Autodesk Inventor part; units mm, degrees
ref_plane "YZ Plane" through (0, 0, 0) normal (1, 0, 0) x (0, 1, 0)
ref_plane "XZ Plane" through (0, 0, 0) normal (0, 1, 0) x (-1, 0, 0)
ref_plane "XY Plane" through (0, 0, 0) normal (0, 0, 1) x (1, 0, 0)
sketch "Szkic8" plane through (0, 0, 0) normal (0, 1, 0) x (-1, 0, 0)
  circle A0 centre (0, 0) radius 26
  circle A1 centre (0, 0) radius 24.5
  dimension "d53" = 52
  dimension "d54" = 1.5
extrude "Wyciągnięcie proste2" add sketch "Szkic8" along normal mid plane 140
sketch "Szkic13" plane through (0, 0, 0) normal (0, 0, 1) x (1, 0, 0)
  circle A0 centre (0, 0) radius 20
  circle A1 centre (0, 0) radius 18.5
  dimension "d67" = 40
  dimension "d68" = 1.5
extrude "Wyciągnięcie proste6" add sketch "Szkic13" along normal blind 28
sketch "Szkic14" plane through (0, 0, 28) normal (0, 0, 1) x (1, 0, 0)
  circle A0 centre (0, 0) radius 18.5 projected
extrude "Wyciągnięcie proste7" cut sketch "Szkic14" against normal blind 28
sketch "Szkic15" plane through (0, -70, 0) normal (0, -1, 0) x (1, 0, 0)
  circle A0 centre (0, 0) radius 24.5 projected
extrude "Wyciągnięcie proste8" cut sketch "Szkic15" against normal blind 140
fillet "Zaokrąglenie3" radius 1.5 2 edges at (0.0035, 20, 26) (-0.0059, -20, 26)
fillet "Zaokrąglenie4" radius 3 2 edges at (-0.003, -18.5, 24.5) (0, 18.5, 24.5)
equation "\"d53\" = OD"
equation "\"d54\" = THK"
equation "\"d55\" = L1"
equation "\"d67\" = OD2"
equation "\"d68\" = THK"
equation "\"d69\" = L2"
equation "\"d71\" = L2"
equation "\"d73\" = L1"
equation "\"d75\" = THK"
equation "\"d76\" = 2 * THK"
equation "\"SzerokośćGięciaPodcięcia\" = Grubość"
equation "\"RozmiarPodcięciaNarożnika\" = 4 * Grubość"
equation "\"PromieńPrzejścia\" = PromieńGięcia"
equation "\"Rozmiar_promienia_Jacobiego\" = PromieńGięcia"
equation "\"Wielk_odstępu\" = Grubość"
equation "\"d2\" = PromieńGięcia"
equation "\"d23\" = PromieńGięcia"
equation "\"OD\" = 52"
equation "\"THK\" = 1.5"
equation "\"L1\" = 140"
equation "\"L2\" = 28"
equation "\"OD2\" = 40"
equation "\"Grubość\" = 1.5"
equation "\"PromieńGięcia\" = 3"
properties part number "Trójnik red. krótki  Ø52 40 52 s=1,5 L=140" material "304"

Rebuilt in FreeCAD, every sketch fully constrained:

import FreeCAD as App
import Part
import Sketcher
Q = App.Units.Quantity


def edges_at(feature, points):
    """Names of the edges that pass closest to the given points."""
    edges = feature.Shape.Edges
    near = lambda p: min(range(len(edges)), key=lambda i: edges[i].distToShape(Part.Vertex(*p))[0])
    return sorted({f"Edge{near(p) + 1}" for p in points})

doc = App.newDocument("Part")
params = doc.addObject("Spreadsheet::Sheet", "Params")
for row, (alias, value) in enumerate([
    ("sketch1_diameter", "52 mm"),
    ("sketch1_diameter2", "49 mm"),
    ("pad1_length", "140 mm"),
    ("sketch2_diameter", "40 mm"),
    ("sketch2_diameter2", "37 mm"),
    ("pad2_length", "28 mm"),
    ("sketch3_diameter", "37 mm"),
    ("pocket1_length", "28 mm"),
    ("sketch4_diameter", "49 mm"),
    ("pocket2_length", "140 mm"),
    ("fillet_radius", "1.5 mm"),
    ("fillet2_radius", "3 mm"),
], start=1):
    params.set(f"A{row}", alias)
    params.set(f"B{row}", "=" + value)
    params.setAlias(f"B{row}", alias)

body = doc.addObject("PartDesign::Body", "Body")

sketch1 = body.newObject("Sketcher::SketchObject", "Sketch")
sketch1.AttachmentSupport = (doc.getObject("XZ_Plane"), [""])
sketch1.MapMode = "FlatFace"
sketch1.addGeometry([
    Part.Circle(App.Vector(0, 0, 0), App.Vector(0, 0, 1), 26),
    Part.Circle(App.Vector(0, 0, 0), App.Vector(0, 0, 1), 24),
], False)
sketch1.addConstraint([
    Sketcher.Constraint("Coincident", 0, 3, -1, 1),
    Sketcher.Constraint("Coincident", 1, 3, -1, 1),
    Sketcher.Constraint("Diameter", 0, Q("52 mm")),
    Sketcher.Constraint("Diameter", 1, Q("49 mm")),
])
sketch1.setExpression("Constraints[2]", "Params.sketch1_diameter")
sketch1.setExpression("Constraints[3]", "Params.sketch1_diameter2")
pad1 = body.newObject("PartDesign::Pad", "Pad")
pad1.Profile = sketch1
pad1.setExpression("Length", "Params.pad1_length")
pad1.Midplane = True

sketch2 = body.newObject("Sketcher::SketchObject", "Sketch001")
sketch2.AttachmentSupport = (doc.getObject("XY_Plane"), [""])
sketch2.MapMode = "FlatFace"
sketch2.addGeometry([
    Part.Circle(App.Vector(0, 0, 0), App.Vector(0, 0, 1), 20),
    Part.Circle(App.Vector(0, 0, 0), App.Vector(0, 0, 1), 18),
], False)
sketch2.addConstraint([
    Sketcher.Constraint("Coincident", 0, 3, -1, 1),
    Sketcher.Constraint("Coincident", 1, 3, -1, 1),
    Sketcher.Constraint("Diameter", 0, Q("40 mm")),
    Sketcher.Constraint("Diameter", 1, Q("37 mm")),
])
sketch2.setExpression("Constraints[2]", "Params.sketch2_diameter")
sketch2.setExpression("Constraints[3]", "Params.sketch2_diameter2")
pad2 = body.newObject("PartDesign::Pad", "Pad001")
pad2.Profile = sketch2
pad2.setExpression("Length", "Params.pad2_length")

sketch3 = body.newObject("Sketcher::SketchObject", "Sketch002")
sketch3.AttachmentSupport = (doc.getObject("XY_Plane"), [""])
sketch3.MapMode = "FlatFace"
sketch3.AttachmentOffset = App.Placement(App.Vector(0, 0, 28), App.Rotation())
sketch3.addGeometry(Part.Circle(App.Vector(0, 0, 0), App.Vector(0, 0, 1), 18), False)
sketch3.addConstraint([
    Sketcher.Constraint("Coincident", 0, 3, -1, 1),
    Sketcher.Constraint("Diameter", 0, Q("37 mm")),
])
sketch3.setExpression("Constraints[1]", "Params.sketch3_diameter")
pocket1 = body.newObject("PartDesign::Pocket", "Pocket")
pocket1.Profile = sketch3
pocket1.setExpression("Length", "Params.pocket1_length")

sketch4 = body.newObject("Sketcher::SketchObject", "Sketch003")
sketch4.AttachmentSupport = (doc.getObject("XZ_Plane"), [""])
sketch4.MapMode = "FlatFace"
sketch4.AttachmentOffset = App.Placement(App.Vector(0, 0, 70), App.Rotation())
sketch4.addGeometry(Part.Circle(App.Vector(0, 0, 0), App.Vector(0, 0, 1), 24), False)
sketch4.addConstraint([
    Sketcher.Constraint("Coincident", 0, 3, -1, 1),
    Sketcher.Constraint("Diameter", 0, Q("49 mm")),
])
sketch4.setExpression("Constraints[1]", "Params.sketch4_diameter")
pocket2 = body.newObject("PartDesign::Pocket", "Pocket001")
pocket2.Profile = sketch4
pocket2.setExpression("Length", "Params.pocket2_length")
doc.recompute()

fillet = body.newObject("PartDesign::Fillet", "Fillet")
fillet.Base = (pocket2, edges_at(pocket2, [(0.004, 20, 26), (-0.006, -20, 26)]))
fillet.setExpression("Radius", "Params.fillet_radius")
doc.recompute()

fillet2 = body.newObject("PartDesign::Fillet", "Fillet001")
fillet2.Base = (fillet, edges_at(fillet, [(-0.003, -18.5, 24.5), (0, 18.5, 24.5)]))
fillet2.setExpression("Radius", "Params.fillet2_radius")

doc.recompute()
